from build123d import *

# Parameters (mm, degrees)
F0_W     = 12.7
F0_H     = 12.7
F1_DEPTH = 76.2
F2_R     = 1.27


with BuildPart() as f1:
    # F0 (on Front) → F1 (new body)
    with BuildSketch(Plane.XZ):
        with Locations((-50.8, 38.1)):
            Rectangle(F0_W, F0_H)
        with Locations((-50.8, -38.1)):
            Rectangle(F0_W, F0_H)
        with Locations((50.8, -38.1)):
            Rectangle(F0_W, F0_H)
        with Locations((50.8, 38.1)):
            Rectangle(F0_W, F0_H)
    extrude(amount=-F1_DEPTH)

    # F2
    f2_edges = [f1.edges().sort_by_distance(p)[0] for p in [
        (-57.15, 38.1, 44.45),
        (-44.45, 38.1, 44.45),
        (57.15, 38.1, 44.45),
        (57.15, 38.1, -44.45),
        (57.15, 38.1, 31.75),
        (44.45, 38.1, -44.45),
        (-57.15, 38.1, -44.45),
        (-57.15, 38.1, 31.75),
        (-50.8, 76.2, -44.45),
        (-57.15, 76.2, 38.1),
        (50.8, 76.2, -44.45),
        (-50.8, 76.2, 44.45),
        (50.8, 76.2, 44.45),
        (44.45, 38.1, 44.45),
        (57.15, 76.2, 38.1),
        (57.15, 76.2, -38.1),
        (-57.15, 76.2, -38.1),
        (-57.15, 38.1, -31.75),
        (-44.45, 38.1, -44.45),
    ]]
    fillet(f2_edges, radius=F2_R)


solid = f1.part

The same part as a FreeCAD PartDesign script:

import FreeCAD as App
import Part
import Sketcher
from FreeCAD import Vector
Q = App.Units.Quantity


def edges_at(feature, points):
    """Names of the edges that pass closest to the given points."""
    edges = feature.Shape.Edges
    near = lambda p: min(range(len(edges)), key=lambda i: edges[i].distToShape(Part.Vertex(*p))[0])
    return sorted({f"Edge{near(p) + 1}" for p in points})


def add_polygon(sketch, points):
    """Adds a closed chain of lines whose ends are joined by coincident constraints."""
    first, n = sketch.GeometryCount, len(points)
    for a, b in zip(points, points[1:] + points[:1]):
        sketch.addGeometry(Part.LineSegment(App.Vector(*a, 0), App.Vector(*b, 0)), False)
    for i in range(n):
        sketch.addConstraint(Sketcher.Constraint("Coincident", first + i, 2, first + (i + 1) % n, 1))

doc = App.newDocument("Part")
body = doc.addObject("PartDesign::Body", "Body")
body.AllowCompound = True

sketch1 = body.newObject("Sketcher::SketchObject", "Sketch")
sketch1.AttachmentSupport = (doc.getObject("XZ_Plane"), [""])
sketch1.MapMode = "FlatFace"
add_polygon(sketch1, [(-57.15, 44.45), (-57.15, 31.75), (-44.45, 31.75), (-44.45, 44.45)])
add_polygon(sketch1, [(-57.15, -31.75), (-57.15, -44.45), (-44.45, -44.45), (-44.45, -31.75)])
add_polygon(sketch1, [(44.45, -31.75), (44.45, -44.45), (57.15, -44.45), (57.15, -31.75)])
add_polygon(sketch1, [(44.45, 44.45), (44.45, 31.75), (57.15, 31.75), (57.15, 44.45)])
sketch1.addConstraint(Sketcher.Constraint("Vertical", 0))
sketch1.addConstraint(Sketcher.Constraint("Horizontal", 1))
sketch1.addConstraint(Sketcher.Constraint("Vertical", 2))
sketch1.addConstraint(Sketcher.Constraint("Horizontal", 3))
sketch1.addConstraint(Sketcher.Constraint("Vertical", 4))
sketch1.addConstraint(Sketcher.Constraint("Horizontal", 5))
sketch1.addConstraint(Sketcher.Constraint("Vertical", 6))
sketch1.addConstraint(Sketcher.Constraint("Horizontal", 7))
sketch1.addConstraint(Sketcher.Constraint("Vertical", 8))
sketch1.addConstraint(Sketcher.Constraint("Horizontal", 9))
sketch1.addConstraint(Sketcher.Constraint("Vertical", 10))
sketch1.addConstraint(Sketcher.Constraint("Horizontal", 11))
sketch1.addConstraint(Sketcher.Constraint("Vertical", 12))
sketch1.addConstraint(Sketcher.Constraint("Horizontal", 13))
sketch1.addConstraint(Sketcher.Constraint("Vertical", 14))
sketch1.addConstraint(Sketcher.Constraint("Horizontal", 15))
sketch1.addConstraint(Sketcher.Constraint("Symmetric", 2, 2, 8, 2, -1, 1))
sketch1.addConstraint(Sketcher.Constraint("Symmetric", 0, 2, 10, 2, -1, 1))
sketch1.addConstraint(Sketcher.Constraint("Symmetric", 6, 2, 12, 2, -1, 1))
sketch1.addConstraint(Sketcher.Constraint("Symmetric", 4, 2, 14, 2, -1, 1))
sketch1.addConstraint(Sketcher.Constraint("Symmetric", 5, 2, 8, 2, -2))
sketch1.addConstraint(Sketcher.Constraint("Symmetric", 7, 2, 10, 2, -2))
sketch1.addConstraint(Sketcher.Constraint("Equal", 15, 0))
sketch1.addConstraint(Sketcher.Constraint("DistanceX", 1, 1, 1, 2, Q("0.5 in")))
sketch1.addConstraint(Sketcher.Constraint("DistanceY", 4, 2, 0, 2, Q("3 in")))
sketch1.addConstraint(Sketcher.Constraint("DistanceX", 4, 2, 8, 2, Q("4 in")))
pad1 = body.newObject("PartDesign::Pad", "Pad")
pad1.Profile = sketch1
pad1.Length = Q("3 in")
pad1.Reversed = True
doc.recompute()

fillet = body.newObject("PartDesign::Fillet", "Fillet")
fillet.Base = (pad1, edges_at(pad1, [
    (-57.15, 38.1, 44.45),
    (-44.45, 38.1, 44.45),
    (57.15, 38.1, 44.45),
    (57.15, 38.1, -44.45),
    (57.15, 38.1, 31.75),
    (44.45, 38.1, -44.45),
    (-57.15, 38.1, -44.45),
    (-57.15, 38.1, 31.75),
    (-50.8, 76.2, -44.45),
    (-57.15, 76.2, 38.1),
    (50.8, 76.2, -44.45),
    (-50.8, 76.2, 44.45),
    (50.8, 76.2, 44.45),
    (44.45, 38.1, 44.45),
    (57.15, 76.2, 38.1),
    (57.15, 76.2, -38.1),
    (-57.15, 76.2, -38.1),
    (-57.15, 38.1, -31.75),
    (-44.45, 38.1, -44.45),
]))
fillet.Radius = Q("0.05 in")

doc.recompute()
